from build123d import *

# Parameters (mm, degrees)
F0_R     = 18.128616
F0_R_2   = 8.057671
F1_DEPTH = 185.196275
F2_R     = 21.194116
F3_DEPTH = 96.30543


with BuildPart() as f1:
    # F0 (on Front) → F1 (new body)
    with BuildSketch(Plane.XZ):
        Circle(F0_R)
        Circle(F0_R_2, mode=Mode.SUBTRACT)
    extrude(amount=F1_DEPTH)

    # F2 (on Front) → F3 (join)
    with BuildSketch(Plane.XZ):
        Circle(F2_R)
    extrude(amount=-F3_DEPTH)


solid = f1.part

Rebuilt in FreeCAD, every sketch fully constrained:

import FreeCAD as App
import Part
import Sketcher

V = App.Vector
Q = App.Units.Quantity

doc = App.newDocument("Part")
body = doc.addObject("PartDesign::Body", "Body")

# Sketch on XZ plane
sketch1 = doc.addObject("Sketcher::SketchObject", "Sketch")
body.addObject(sketch1)
sketch1.AttachmentSupport = (doc.XZ_Plane, [""])
sketch1.MapMode = "FlatFace"
sketch1.addGeometry([
    Part.Circle(V(0, 0, 0), V(0, 0, 1), 18),
    Part.Circle(V(0, 0, 0), V(0, 0, 1), 8),
], False)
sketch1.addConstraint([
    Sketcher.Constraint("Coincident", 0, 3, -1, 1),
    Sketcher.Constraint("Coincident", 1, 3, -1, 1),
    Sketcher.Constraint("Diameter", 1, Q("16.115342 mm")),
    Sketcher.Constraint("Diameter", 0, Q("36.257232 mm")),
])
pad1 = doc.addObject("PartDesign::Pad", "Pad")
body.addObject(pad1)
pad1.Profile = sketch1
pad1.Length = 185.196275

# Sketch on XZ plane
sketch2 = doc.addObject("Sketcher::SketchObject", "Sketch001")
body.addObject(sketch2)
sketch2.AttachmentSupport = (doc.XZ_Plane, [""])
sketch2.MapMode = "FlatFace"
sketch2.addGeometry(Part.Circle(V(0, 0, 0), V(0, 0, 1), 21), False)
sketch2.addConstraint([
    Sketcher.Constraint("Coincident", 0, 3, -1, 1),
    Sketcher.Constraint("Diameter", 0, Q("42.388232 mm")),
])
pad2 = doc.addObject("PartDesign::Pad", "Pad001")
body.addObject(pad2)
pad2.Profile = sketch2
pad2.Length = 96.30543
pad2.Reversed = True

doc.recompute()
